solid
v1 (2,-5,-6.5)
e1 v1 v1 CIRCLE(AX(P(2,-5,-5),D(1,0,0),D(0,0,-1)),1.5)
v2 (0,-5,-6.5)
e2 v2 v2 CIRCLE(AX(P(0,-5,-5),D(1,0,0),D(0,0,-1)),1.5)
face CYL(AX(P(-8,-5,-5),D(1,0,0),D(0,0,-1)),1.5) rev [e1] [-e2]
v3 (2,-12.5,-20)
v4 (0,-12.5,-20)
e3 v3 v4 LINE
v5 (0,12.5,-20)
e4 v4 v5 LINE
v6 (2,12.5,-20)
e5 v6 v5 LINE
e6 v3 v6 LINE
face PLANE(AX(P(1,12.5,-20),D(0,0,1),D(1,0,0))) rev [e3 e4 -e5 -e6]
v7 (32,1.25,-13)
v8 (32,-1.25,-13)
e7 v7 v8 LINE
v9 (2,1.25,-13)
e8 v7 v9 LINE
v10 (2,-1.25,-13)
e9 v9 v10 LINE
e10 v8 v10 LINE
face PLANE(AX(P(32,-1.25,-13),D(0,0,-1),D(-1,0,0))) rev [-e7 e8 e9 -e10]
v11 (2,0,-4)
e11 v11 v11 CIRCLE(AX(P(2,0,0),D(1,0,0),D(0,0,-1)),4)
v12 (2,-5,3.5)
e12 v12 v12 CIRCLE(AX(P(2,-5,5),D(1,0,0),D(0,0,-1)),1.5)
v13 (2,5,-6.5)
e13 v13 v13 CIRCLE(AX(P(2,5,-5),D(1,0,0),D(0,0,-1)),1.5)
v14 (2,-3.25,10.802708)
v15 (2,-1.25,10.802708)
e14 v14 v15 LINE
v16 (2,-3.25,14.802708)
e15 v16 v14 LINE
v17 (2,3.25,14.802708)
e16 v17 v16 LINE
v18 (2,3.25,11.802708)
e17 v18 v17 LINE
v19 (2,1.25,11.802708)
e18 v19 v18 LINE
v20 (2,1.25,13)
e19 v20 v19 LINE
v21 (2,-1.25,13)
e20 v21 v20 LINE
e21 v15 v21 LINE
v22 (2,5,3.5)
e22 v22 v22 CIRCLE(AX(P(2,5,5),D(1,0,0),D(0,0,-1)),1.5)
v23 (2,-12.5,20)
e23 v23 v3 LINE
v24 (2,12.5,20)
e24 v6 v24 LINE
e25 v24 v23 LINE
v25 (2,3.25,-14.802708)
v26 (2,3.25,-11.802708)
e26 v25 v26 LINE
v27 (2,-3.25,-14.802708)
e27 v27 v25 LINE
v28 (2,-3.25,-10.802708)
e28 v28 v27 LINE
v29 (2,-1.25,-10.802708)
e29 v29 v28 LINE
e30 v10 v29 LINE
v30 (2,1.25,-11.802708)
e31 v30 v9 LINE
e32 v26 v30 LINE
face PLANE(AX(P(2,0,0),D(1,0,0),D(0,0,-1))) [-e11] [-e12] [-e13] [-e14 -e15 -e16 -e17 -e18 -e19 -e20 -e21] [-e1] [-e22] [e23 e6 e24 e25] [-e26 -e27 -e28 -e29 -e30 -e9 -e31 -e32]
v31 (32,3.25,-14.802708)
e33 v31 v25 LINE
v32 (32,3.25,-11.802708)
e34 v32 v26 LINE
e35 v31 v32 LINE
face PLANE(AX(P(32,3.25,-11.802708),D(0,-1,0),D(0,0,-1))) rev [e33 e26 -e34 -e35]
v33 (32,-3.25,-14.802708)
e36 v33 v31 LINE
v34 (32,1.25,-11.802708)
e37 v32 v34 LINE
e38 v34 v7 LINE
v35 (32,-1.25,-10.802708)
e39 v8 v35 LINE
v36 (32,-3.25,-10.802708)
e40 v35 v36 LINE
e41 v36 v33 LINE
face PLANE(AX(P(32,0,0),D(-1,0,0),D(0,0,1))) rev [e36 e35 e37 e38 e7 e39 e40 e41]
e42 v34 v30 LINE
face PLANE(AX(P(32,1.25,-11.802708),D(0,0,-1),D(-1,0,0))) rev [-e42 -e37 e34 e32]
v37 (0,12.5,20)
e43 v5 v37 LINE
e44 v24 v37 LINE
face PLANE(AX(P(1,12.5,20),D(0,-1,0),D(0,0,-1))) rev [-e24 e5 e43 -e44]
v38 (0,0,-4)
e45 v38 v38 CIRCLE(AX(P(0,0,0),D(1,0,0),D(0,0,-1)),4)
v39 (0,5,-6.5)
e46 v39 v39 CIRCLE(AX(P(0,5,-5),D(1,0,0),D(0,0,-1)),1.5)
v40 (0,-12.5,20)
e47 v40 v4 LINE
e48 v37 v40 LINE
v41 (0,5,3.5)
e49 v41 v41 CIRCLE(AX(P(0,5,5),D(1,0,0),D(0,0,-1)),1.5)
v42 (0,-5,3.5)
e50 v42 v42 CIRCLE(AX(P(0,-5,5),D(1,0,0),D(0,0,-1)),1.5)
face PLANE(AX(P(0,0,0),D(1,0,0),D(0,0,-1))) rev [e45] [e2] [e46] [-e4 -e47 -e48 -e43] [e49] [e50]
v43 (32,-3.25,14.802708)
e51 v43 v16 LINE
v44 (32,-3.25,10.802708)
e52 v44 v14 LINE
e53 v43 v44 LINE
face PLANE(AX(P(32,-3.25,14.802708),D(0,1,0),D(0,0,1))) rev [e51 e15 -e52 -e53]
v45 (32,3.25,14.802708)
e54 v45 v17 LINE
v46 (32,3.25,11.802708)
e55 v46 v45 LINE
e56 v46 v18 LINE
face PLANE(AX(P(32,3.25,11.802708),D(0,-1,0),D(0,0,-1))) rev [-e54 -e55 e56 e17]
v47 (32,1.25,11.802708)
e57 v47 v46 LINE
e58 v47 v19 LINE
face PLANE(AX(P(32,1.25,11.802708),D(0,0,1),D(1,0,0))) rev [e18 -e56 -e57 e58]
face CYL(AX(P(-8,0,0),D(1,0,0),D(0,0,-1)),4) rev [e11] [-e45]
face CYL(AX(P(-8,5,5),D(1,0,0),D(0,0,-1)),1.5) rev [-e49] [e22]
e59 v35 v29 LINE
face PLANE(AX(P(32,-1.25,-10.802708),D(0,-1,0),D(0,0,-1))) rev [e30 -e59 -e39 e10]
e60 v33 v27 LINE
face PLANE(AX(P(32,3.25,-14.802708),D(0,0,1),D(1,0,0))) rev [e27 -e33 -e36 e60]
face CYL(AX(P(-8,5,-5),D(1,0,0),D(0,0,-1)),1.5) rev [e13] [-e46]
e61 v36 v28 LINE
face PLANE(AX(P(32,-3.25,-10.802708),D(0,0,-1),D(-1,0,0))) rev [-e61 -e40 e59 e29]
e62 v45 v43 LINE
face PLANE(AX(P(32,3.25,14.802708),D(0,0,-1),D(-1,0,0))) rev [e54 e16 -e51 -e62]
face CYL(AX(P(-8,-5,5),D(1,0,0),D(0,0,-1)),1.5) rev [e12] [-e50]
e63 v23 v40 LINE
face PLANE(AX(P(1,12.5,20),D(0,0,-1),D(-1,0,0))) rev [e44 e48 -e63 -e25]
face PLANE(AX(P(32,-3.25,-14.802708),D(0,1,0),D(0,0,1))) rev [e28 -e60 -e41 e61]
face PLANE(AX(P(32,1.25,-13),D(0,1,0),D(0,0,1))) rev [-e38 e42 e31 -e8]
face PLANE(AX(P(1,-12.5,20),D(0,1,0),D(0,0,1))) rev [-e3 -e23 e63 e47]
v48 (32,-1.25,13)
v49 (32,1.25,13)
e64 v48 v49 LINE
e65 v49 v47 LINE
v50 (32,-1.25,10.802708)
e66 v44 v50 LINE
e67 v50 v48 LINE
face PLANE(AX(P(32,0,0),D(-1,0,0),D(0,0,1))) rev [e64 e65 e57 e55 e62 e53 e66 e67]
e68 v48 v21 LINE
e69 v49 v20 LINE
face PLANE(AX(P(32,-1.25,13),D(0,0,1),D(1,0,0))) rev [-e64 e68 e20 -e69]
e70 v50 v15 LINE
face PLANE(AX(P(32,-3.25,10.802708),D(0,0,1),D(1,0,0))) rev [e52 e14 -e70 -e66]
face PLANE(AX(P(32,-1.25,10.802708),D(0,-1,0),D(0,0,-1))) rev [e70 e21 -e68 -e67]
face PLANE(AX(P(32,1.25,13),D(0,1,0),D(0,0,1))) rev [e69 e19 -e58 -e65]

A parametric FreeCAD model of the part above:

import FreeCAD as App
import Part
import Sketcher
Q = App.Units.Quantity


def add_polygon(sketch, points):
    """Adds a closed chain of lines whose ends are joined by coincident constraints."""
    first, n = sketch.GeometryCount, len(points)
    for a, b in zip(points, points[1:] + points[:1]):
        sketch.addGeometry(Part.LineSegment(App.Vector(*a, 0), App.Vector(*b, 0)), False)
    for i in range(n):
        sketch.addConstraint(Sketcher.Constraint("Coincident", first + i, 2, first + (i + 1) % n, 1))

doc = App.newDocument("Part")
body = doc.addObject("PartDesign::Body", "Body")

sketch1 = body.newObject("Sketcher::SketchObject", "Sketch")
sketch1.AttachmentSupport = (doc.getObject("YZ_Plane"), [""])
sketch1.MapMode = "FlatFace"
add_polygon(sketch1, [(12, 20), (-12, 20), (-12, -20), (12, -20)])
sketch1.addConstraint([
    Sketcher.Constraint("Horizontal", 0),
    Sketcher.Constraint("Vertical", 1),
    Sketcher.Constraint("Horizontal", 2),
    Sketcher.Constraint("Vertical", 3),
    Sketcher.Constraint("Symmetric", 0, 2, 2, 2, -1, 1),
    Sketcher.Constraint("DistanceX", 0, 2, 0, 1, Q("25 mm")),
    Sketcher.Constraint("DistanceY", 1, 2, 1, 1, Q("40 mm")),
])
pad1 = body.newObject("PartDesign::Pad", "Pad")
pad1.Profile = sketch1
pad1.Length = 1

sketch2 = body.newObject("Sketcher::SketchObject", "Sketch001")
sketch2.AttachmentSupport = (doc.getObject("YZ_Plane"), [""])
sketch2.MapMode = "FlatFace"
sketch2.AttachmentOffset = App.Placement(App.Vector(0, 0, 1), App.Rotation())
add_polygon(sketch2, [(12, 20), (-12, 20), (-12, -20), (12, -20)])
sketch2.addConstraint([
    Sketcher.Constraint("Horizontal", 0),
    Sketcher.Constraint("Vertical", 1),
    Sketcher.Constraint("Horizontal", 2),
    Sketcher.Constraint("Vertical", 3),
    Sketcher.Constraint("Symmetric", 0, 2, 2, 2, -1, 1),
    Sketcher.Constraint("DistanceX", 0, 2, 0, 1, Q("25 mm")),
    Sketcher.Constraint("DistanceY", 1, 2, 1, 1, Q("40 mm")),
])
pad2 = body.newObject("PartDesign::Pad", "Pad001")
pad2.Profile = sketch2
pad2.Length = 1

sketch3 = body.newObject("Sketcher::SketchObject", "Sketch002")
sketch3.AttachmentSupport = (doc.getObject("YZ_Plane"), [""])
sketch3.MapMode = "FlatFace"
sketch3.AttachmentOffset = App.Placement(App.Vector(0, 0, 2), App.Rotation())
add_polygon(sketch3, [(3.2, -11.8), (1.2, -11.8), (1.2, -13), (-1.2, -13), (-1.2, -10.8), (-3.2, -10.8), (-3.2, -14.8), (3.2, -14.8)])
add_polygon(sketch3, [(-1.2, 13), (1.2, 13), (1.2, 11.8), (3.2, 11.8), (3.2, 14.8), (-3.2, 14.8), (-3.2, 10.8), (-1.2, 10.8)])
sketch3.addConstraint([
    Sketcher.Constraint("Horizontal", 0),
    Sketcher.Constraint("Vertical", 1),
    Sketcher.Constraint("Horizontal", 2),
    Sketcher.Constraint("Vertical", 3),
    Sketcher.Constraint("Horizontal", 4),
    Sketcher.Constraint("Vertical", 5),
    Sketcher.Constraint("Horizontal", 6),
    Sketcher.Constraint("Vertical", 7),
    Sketcher.Constraint("Horizontal", 8),
    Sketcher.Constraint("Vertical", 9),
    Sketcher.Constraint("Horizontal", 10),
    Sketcher.Constraint("Vertical", 11),
    Sketcher.Constraint("Horizontal", 12),
    Sketcher.Constraint("Vertical", 13),
    Sketcher.Constraint("Horizontal", 14),
    Sketcher.Constraint("Vertical", 15),
    Sketcher.Constraint("Symmetric", 2, 2, 8, 2, -1, 1),
    Sketcher.Constraint("Symmetric", 5, 2, 11, 2, -1, 1),
    Sketcher.Constraint("Symmetric", 0, 2, 9, 2, -1),
    Sketcher.Constraint("Symmetric", 4, 2, 13, 2, -1),
    Sketcher.Constraint("Vertical", 7, 2, 10, 2),
    Sketcher.Constraint("Vertical", 3, 2, 14, 2),
    Sketcher.Constraint("DistanceX", 0, 2, 0, 1, Q("2 mm")),
    Sketcher.Constraint("DistanceY", 5, 2, 5, 1, Q("4 mm")),
    Sketcher.Constraint("DistanceY", 7, 1, 7, 2, Q("3 mm")),
    Sketcher.Constraint("DistanceX", 2, 2, 2, 1, Q("2.5 mm")),
    Sketcher.Constraint("DistanceY", 1, 2, -1, 1, Q("13 mm")),
    Sketcher.Constraint("DistanceY", 1, 2, 1, 1, Q("1.197292 mm")),
])
pad3 = body.newObject("PartDesign::Pad", "Pad002")
pad3.Profile = sketch3
pad3.Length = 30

sketch4 = body.newObject("Sketcher::SketchObject", "Sketch003")
sketch4.AttachmentSupport = (doc.getObject("YZ_Plane"), [""])
sketch4.MapMode = "FlatFace"
sketch4.AttachmentOffset = App.Placement(App.Vector(0, 0, 2), App.Rotation())
sketch4.addGeometry([
    Part.Circle(App.Vector(5, -5, 0), App.Vector(0, 0, 1), 1.5),
    Part.Circle(App.Vector(-5, -5, 0), App.Vector(0, 0, 1), 1.5),
    Part.Circle(App.Vector(-5, 5, 0), App.Vector(0, 0, 1), 1.5),
    Part.Circle(App.Vector(5, 5, 0), App.Vector(0, 0, 1), 1.5),
    Part.Circle(App.Vector(0, 0, 0), App.Vector(0, 0, 1), 4),
], False)
sketch4.addConstraint([
    Sketcher.Constraint("Coincident", 4, 3, -1, 1),
    Sketcher.Constraint("Equal", 0, 1),
    Sketcher.Constraint("Equal", 1, 2),
    Sketcher.Constraint("Equal", 2, 3),
    Sketcher.Constraint("Symmetric", 0, 3, 2, 3, -1, 1),
    Sketcher.Constraint("Symmetric", 1, 3, 3, 3, -1, 1),
    Sketcher.Constraint("Symmetric", 0, 3, 1, 3, -2),
    Sketcher.Constraint("Diameter", 0, Q("3 mm")),
    Sketcher.Constraint("Diameter", 4, Q("8 mm")),
    Sketcher.Constraint("DistanceX", -1, 1, 0, 3, Q("5 mm")),
    Sketcher.Constraint("DistanceY", 0, 3, -1, 1, Q("5 mm")),
])
pocket1 = body.newObject("PartDesign::Pocket", "Pocket")
pocket1.Profile = sketch4
pocket1.Length = 10

doc.recompute()
